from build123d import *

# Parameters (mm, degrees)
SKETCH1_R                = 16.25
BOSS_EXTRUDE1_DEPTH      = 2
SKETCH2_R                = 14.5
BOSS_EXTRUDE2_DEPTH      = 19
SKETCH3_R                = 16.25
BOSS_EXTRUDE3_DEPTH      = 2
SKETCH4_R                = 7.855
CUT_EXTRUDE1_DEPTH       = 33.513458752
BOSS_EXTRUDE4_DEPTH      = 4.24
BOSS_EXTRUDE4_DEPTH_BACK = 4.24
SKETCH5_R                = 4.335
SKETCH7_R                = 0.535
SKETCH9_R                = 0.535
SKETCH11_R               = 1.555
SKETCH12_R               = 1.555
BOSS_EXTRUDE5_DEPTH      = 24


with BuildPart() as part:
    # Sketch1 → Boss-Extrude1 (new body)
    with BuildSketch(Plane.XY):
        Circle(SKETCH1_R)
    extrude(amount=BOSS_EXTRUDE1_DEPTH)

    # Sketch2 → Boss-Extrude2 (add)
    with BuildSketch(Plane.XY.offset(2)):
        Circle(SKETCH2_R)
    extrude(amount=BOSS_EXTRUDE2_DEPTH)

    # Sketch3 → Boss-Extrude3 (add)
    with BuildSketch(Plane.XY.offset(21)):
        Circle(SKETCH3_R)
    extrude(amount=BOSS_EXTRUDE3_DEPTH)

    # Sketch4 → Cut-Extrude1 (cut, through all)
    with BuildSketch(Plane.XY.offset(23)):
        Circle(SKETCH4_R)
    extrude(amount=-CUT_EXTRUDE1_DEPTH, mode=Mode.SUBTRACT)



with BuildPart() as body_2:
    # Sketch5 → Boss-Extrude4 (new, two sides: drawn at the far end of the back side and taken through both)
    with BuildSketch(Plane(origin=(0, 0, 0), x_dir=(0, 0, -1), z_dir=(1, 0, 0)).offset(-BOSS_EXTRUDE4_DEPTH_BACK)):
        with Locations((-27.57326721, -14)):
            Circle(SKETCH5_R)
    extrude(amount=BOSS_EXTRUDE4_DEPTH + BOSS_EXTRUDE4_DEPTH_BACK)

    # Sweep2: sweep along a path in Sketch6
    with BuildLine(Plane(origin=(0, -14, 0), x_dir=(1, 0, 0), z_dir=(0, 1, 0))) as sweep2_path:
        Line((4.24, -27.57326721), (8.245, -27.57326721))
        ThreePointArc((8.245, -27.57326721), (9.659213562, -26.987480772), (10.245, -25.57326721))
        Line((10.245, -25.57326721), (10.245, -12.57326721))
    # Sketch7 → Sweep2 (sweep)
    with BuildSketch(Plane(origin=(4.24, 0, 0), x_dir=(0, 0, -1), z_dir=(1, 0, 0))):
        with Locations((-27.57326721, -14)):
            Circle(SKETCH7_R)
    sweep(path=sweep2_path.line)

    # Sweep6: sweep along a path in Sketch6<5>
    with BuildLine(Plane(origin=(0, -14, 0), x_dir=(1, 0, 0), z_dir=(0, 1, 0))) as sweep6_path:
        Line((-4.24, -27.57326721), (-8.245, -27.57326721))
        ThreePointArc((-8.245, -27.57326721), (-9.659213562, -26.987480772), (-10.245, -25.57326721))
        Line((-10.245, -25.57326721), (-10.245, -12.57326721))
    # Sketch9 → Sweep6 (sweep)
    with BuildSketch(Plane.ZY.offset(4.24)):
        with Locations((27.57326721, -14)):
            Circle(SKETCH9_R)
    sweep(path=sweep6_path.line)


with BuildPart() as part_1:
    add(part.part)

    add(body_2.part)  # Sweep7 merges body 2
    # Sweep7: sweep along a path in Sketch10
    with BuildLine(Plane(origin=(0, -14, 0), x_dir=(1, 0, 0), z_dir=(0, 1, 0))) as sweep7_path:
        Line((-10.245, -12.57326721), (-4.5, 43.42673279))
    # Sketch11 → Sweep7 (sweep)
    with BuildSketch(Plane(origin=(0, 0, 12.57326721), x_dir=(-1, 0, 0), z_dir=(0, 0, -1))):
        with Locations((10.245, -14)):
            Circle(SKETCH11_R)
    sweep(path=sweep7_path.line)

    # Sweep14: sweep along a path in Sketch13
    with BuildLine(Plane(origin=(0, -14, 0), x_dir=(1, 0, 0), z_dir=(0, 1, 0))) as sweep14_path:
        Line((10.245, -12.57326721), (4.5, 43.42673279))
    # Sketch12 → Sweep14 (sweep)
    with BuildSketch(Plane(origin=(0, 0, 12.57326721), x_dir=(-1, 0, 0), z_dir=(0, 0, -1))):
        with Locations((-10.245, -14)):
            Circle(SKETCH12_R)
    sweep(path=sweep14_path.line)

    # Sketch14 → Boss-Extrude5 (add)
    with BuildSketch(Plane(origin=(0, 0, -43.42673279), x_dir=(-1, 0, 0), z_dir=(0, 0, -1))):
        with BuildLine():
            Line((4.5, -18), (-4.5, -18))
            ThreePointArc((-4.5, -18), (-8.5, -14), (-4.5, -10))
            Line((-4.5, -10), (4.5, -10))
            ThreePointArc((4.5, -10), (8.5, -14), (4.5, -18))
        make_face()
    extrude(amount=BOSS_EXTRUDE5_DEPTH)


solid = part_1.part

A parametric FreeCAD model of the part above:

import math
import FreeCAD as App
import Part
import Sketcher
from FreeCAD import Vector
Q = App.Units.Quantity

doc = App.newDocument("Part")
body = doc.addObject("PartDesign::Body", "Body")

# Sketch on XY plane
sketch1 = body.newObject("Sketcher::SketchObject", "Sketch")
sketch1.AttachmentSupport = (doc.getObject("XY_Plane"), [""])
sketch1.MapMode = "FlatFace"
sketch1.addGeometry(Part.Circle(Vector(0, 0, 0), Vector(0, 0, 1), 16.25), False)
sketch1.addConstraint([
    Sketcher.Constraint("Coincident", 0, 3, -1, 1),
    Sketcher.Constraint("Diameter", 0, Q("32.5 mm")),
])
pad1 = body.newObject("PartDesign::Pad", "Pad")
pad1.Profile = sketch1
pad1.Length = 2

# Sketch on XY plane
sketch2 = body.newObject("Sketcher::SketchObject", "Sketch001")
sketch2.AttachmentSupport = (doc.getObject("XY_Plane"), [""])
sketch2.MapMode = "FlatFace"
sketch2.AttachmentOffset = App.Placement(Vector(0, 0, 2), App.Rotation())
sketch2.addGeometry(Part.Circle(Vector(0, 0, 0), Vector(0, 0, 1), 14.5), False)
sketch2.addConstraint([
    Sketcher.Constraint("Coincident", 0, 3, -1, 1),
    Sketcher.Constraint("Diameter", 0, Q("29 mm")),
])
pad2 = body.newObject("PartDesign::Pad", "Pad001")
pad2.Profile = sketch2
pad2.Length = 19

# Sketch on XY plane
sketch3 = body.newObject("Sketcher::SketchObject", "Sketch002")
sketch3.AttachmentSupport = (doc.getObject("XY_Plane"), [""])
sketch3.MapMode = "FlatFace"
sketch3.AttachmentOffset = App.Placement(Vector(0, 0, 21), App.Rotation())
sketch3.addGeometry(Part.Circle(Vector(0, 0, 0), Vector(0, 0, 1), 16.25), False)
sketch3.addConstraint([
    Sketcher.Constraint("Coincident", 0, 3, -1, 1),
    Sketcher.Constraint("Diameter", 0, Q("32.5 mm")),
])
pad3 = body.newObject("PartDesign::Pad", "Pad002")
pad3.Profile = sketch3
pad3.Length = 2

# Sketch on XY plane
sketch4 = body.newObject("Sketcher::SketchObject", "Sketch003")
sketch4.AttachmentSupport = (doc.getObject("XY_Plane"), [""])
sketch4.MapMode = "FlatFace"
sketch4.AttachmentOffset = App.Placement(Vector(0, 0, 23), App.Rotation())
sketch4.addGeometry(Part.Circle(Vector(0, 0, 0), Vector(0, 0, 1), 7.855), False)
sketch4.addConstraint([
    Sketcher.Constraint("Coincident", 0, 3, -1, 1),
    Sketcher.Constraint("Diameter", 0, Q("15.71 mm")),
])
pocket1 = body.newObject("PartDesign::Pocket", "Pocket")
pocket1.Profile = sketch4
pocket1.Type = "ThroughAll"
body2 = doc.addObject("PartDesign::Body", "Body001")

# Sketch on YZ plane
sketch5 = body2.newObject("Sketcher::SketchObject", "Sketch004")
sketch5.AttachmentSupport = (doc.getObject("YZ_Plane001"), [""])
sketch5.MapMode = "FlatFace"
sketch5.addGeometry(Part.Circle(Vector(-14, 27.573267, 0), Vector(0, 0, 1), 4.335), False)
sketch5.addConstraint([
    Sketcher.Constraint("Diameter", 0, Q("8.67 mm")),
    Sketcher.Constraint("DistanceX", 0, 3, -1, 1, Q("14 mm")),
    Sketcher.Constraint("DistanceY", -1, 1, 0, 3, Q("27.573267 mm")),
])
pad4 = body2.newObject("PartDesign::Pad", "Pad003")
pad4.Profile = sketch5
pad4.Type = "TwoLengths"
pad4.Length = 4.24
pad4.Length2 = 4.24

# Sketch on YZ plane
sketch6 = body2.newObject("Sketcher::SketchObject", "Sketch005")
sketch6.AttachmentSupport = (doc.getObject("YZ_Plane001"), [""])
sketch6.MapMode = "FlatFace"
sketch6.AttachmentOffset = App.Placement(Vector(0, 0, 4.24), App.Rotation())
sketch6.addGeometry(Part.Circle(Vector(-14, 27.573267, 0), Vector(0, 0, 1), 0.535), False)
sketch6.addConstraint([
    Sketcher.Constraint("Diameter", 0, Q("1.07 mm")),
    Sketcher.Constraint("DistanceX", 0, 3, -1, 1, Q("14 mm")),
    Sketcher.Constraint("DistanceY", -1, 1, 0, 3, Q("27.573267 mm")),
])

# Sketch on XZ plane
sketch7 = body2.newObject("Sketcher::SketchObject", "Sketch006")
sketch7.AttachmentSupport = (doc.getObject("XZ_Plane001"), [""])
sketch7.MapMode = "FlatFace"
sketch7.AttachmentOffset = App.Placement(Vector(0, 0, 14), App.Rotation())
sketch7.addGeometry([
    Part.LineSegment(Vector(4.24, 27.573267, 0), Vector(8.245, 27.573267, 0)),
    Part.ArcOfCircle(Part.Circle(Vector(8.245, 25.573267, 0), Vector(0, 0, 1), 2), math.radians(0), math.radians(90)),
    Part.LineSegment(Vector(10.245, 25.573267, 0), Vector(10.245, 12.573267, 0)),
], False)
sketch7.addConstraint([
    Sketcher.Constraint("Tangent", 0, 2, 1, 2),
    Sketcher.Constraint("Tangent", 1, 1, 2, 1),
    Sketcher.Constraint("Horizontal", 0),
    Sketcher.Constraint("Vertical", 2),
    Sketcher.Constraint("Radius", 1, Q("2 mm")),
    Sketcher.Constraint("DistanceY", 2, 2, 2, 1, Q("13 mm")),
    Sketcher.Constraint("DistanceX", 0, 1, 0, 2, Q("4.005 mm")),
    Sketcher.Constraint("DistanceX", -1, 1, 0, 1, Q("4.24 mm")),
    Sketcher.Constraint("DistanceY", -1, 1, 1, 3, Q("25.573267 mm")),
])
doc.recompute()

additivepipe = body2.newObject("PartDesign::AdditivePipe", "AdditivePipe")
additivepipe.Profile = sketch6
additivepipe.Spine = (sketch7, ["Edge1", "Edge2", "Edge3"])

# Sketch on YZ plane
sketch8 = body2.newObject("Sketcher::SketchObject", "Sketch007")
sketch8.AttachmentSupport = (doc.getObject("YZ_Plane001"), [""])
sketch8.MapMode = "FlatFace"
sketch8.AttachmentOffset = App.Placement(Vector(0, 0, -4.24), App.Rotation())
sketch8.addGeometry(Part.Circle(Vector(-14, 27.573267, 0), Vector(0, 0, 1), 0.535), False)
sketch8.addConstraint([
    Sketcher.Constraint("Diameter", 0, Q("1.07 mm")),
    Sketcher.Constraint("DistanceX", 0, 3, -1, 1, Q("14 mm")),
    Sketcher.Constraint("DistanceY", -1, 1, 0, 3, Q("27.573267 mm")),
])

# Sketch on XZ plane
sketch9 = body2.newObject("Sketcher::SketchObject", "Sketch008")
sketch9.AttachmentSupport = (doc.getObject("XZ_Plane001"), [""])
sketch9.MapMode = "FlatFace"
sketch9.AttachmentOffset = App.Placement(Vector(0, 0, 14), App.Rotation())
sketch9.addGeometry([
    Part.LineSegment(Vector(-4.24, 27.573267, 0), Vector(-8.245, 27.573267, 0)),
    Part.ArcOfCircle(Part.Circle(Vector(-8.245, 25.573267, 0), Vector(0, 0, 1), 2), math.radians(90), math.radians(180)),
    Part.LineSegment(Vector(-10.245, 25.573267, 0), Vector(-10.245, 12.573267, 0)),
], False)
sketch9.addConstraint([
    Sketcher.Constraint("Tangent", 0, 2, 1, 1),
    Sketcher.Constraint("Tangent", 1, 2, 2, 1),
    Sketcher.Constraint("Horizontal", 0),
    Sketcher.Constraint("Vertical", 2),
    Sketcher.Constraint("Radius", 1, Q("2 mm")),
    Sketcher.Constraint("DistanceY", 2, 2, 2, 1, Q("13 mm")),
    Sketcher.Constraint("DistanceX", 0, 2, 0, 1, Q("4.005 mm")),
    Sketcher.Constraint("DistanceX", 0, 1, -1, 1, Q("4.24 mm")),
    Sketcher.Constraint("DistanceY", -1, 1, 1, 3, Q("25.573267 mm")),
])
doc.recompute()

additivepipe2 = body2.newObject("PartDesign::AdditivePipe", "AdditivePipe001")
additivepipe2.Profile = sketch8
additivepipe2.Spine = (sketch9, ["Edge1", "Edge2", "Edge3"])
body.AllowCompound = True
doc.recompute()

boolean = body.newObject("PartDesign::Boolean", "Boolean")
boolean.Type = "Fuse"
boolean.addObjects([body2])

# Sketch on XY plane
sketch10 = body.newObject("Sketcher::SketchObject", "Sketch009")
sketch10.AttachmentSupport = (doc.getObject("XY_Plane"), [""])
sketch10.MapMode = "FlatFace"
sketch10.AttachmentOffset = App.Placement(Vector(0, 0, 12.573267), App.Rotation())
sketch10.addGeometry(Part.Circle(Vector(-10.245, -14, 0), Vector(0, 0, 1), 1.555), False)
sketch10.addConstraint([
    Sketcher.Constraint("Diameter", 0, Q("3.11 mm")),
    Sketcher.Constraint("DistanceY", 0, 3, -1, 1, Q("14 mm")),
    Sketcher.Constraint("DistanceX", 0, 3, -1, 1, Q("10.245 mm")),
])

# Sketch on an angled plane
sketch11 = body.newObject("Sketcher::SketchObject", "Sketch010")
sketch11.Placement = App.Placement(Vector(-8.86185, 0, -0.909131), App.Rotation(Vector(0.102053656, 0, -0.994778896), Vector(0, 1.000000001, 0), Vector(0.994778896, 0, 0.102053656), "ZXY"))
sketch11.addGeometry(Part.LineSegment(Vector(-13.553161, -14, 0), Vector(42.740756, -14, 0)), False)
sketch11.addConstraint([
    Sketcher.Constraint("Horizontal", 0),
    Sketcher.Constraint("DistanceY", 0, 1, -1, 1, Q("14 mm")),
    Sketcher.Constraint("DistanceX", 0, 1, 0, 2, Q("56.293916 mm")),
    Sketcher.Constraint("DistanceX", 0, 1, -1, 1, Q("13.553161 mm")),
])
doc.recompute()

additivepipe3 = body.newObject("PartDesign::AdditivePipe", "AdditivePipe002")
additivepipe3.Profile = sketch10
additivepipe3.Spine = (sketch11, ["Edge1"])

# Sketch on XY plane
sketch12 = body.newObject("Sketcher::SketchObject", "Sketch011")
sketch12.AttachmentSupport = (doc.getObject("XY_Plane"), [""])
sketch12.MapMode = "FlatFace"
sketch12.AttachmentOffset = App.Placement(Vector(0, 0, 12.573267), App.Rotation())
sketch12.addGeometry(Part.Circle(Vector(10.245, -14, 0), Vector(0, 0, 1), 1.555), False)
sketch12.addConstraint([
    Sketcher.Constraint("Diameter", 0, Q("3.11 mm")),
    Sketcher.Constraint("DistanceY", 0, 3, -1, 1, Q("14 mm")),
    Sketcher.Constraint("DistanceX", -1, 1, 0, 3, Q("10.245 mm")),
])

# Sketch on an angled plane
sketch13 = body.newObject("Sketcher::SketchObject", "Sketch012")
sketch13.Placement = App.Placement(Vector(8.86185, 0, -0.909131), App.Rotation(Vector(-0.102053656, 0, -0.994778896), Vector(0, 1.000000001, 0), Vector(0.994778896, 0, -0.102053656), "ZXY"))
sketch13.addGeometry(Part.LineSegment(Vector(-13.553161, -14, 0), Vector(42.740756, -14, 0)), False)
sketch13.addConstraint([
    Sketcher.Constraint("Horizontal", 0),
    Sketcher.Constraint("DistanceY", 0, 1, -1, 1, Q("14 mm")),
    Sketcher.Constraint("DistanceX", 0, 1, 0, 2, Q("56.293916 mm")),
    Sketcher.Constraint("DistanceX", 0, 1, -1, 1, Q("13.553161 mm")),
])
doc.recompute()

additivepipe4 = body.newObject("PartDesign::AdditivePipe", "AdditivePipe003")
additivepipe4.Profile = sketch12
additivepipe4.Spine = (sketch13, ["Edge1"])

# Sketch on XY plane
sketch14 = body.newObject("Sketcher::SketchObject", "Sketch013")
sketch14.AttachmentSupport = (doc.getObject("XY_Plane"), [""])
sketch14.MapMode = "FlatFace"
sketch14.AttachmentOffset = App.Placement(Vector(0, 0, -43.426733), App.Rotation())
sketch14.addGeometry([
    Part.LineSegment(Vector(4.5, -18, 0), Vector(-4.5, -18, 0)),
    Part.ArcOfCircle(Part.Circle(Vector(-4.5, -14, 0), Vector(0, 0, 1), 4), math.radians(90), math.radians(270)),
    Part.LineSegment(Vector(-4.5, -10, 0), Vector(4.5, -10, 0)),
    Part.ArcOfCircle(Part.Circle(Vector(4.5, -14, 0), Vector(0, 0, 1), 4), math.radians(-90), math.radians(90)),
], False)
sketch14.addConstraint([
    Sketcher.Constraint("Tangent", 0, 2, 1, 2),
    Sketcher.Constraint("Tangent", 1, 1, 2, 1),
    Sketcher.Constraint("Tangent", 2, 2, 3, 2),
    Sketcher.Constraint("Tangent", 3, 1, 0, 1),
    Sketcher.Constraint("Horizontal", 0),
    Sketcher.Constraint("Horizontal", 2),
    Sketcher.Constraint("Radius", 1, Q("4 mm")),
    Sketcher.Constraint("DistanceX", 0, 2, 0, 1, Q("9 mm")),
    Sketcher.Constraint("DistanceY", 1, 3, -1, 1, Q("14 mm")),
    Sketcher.Constraint("DistanceX", 1, 3, -1, 1, Q("4.5 mm")),
])
pad5 = body.newObject("PartDesign::Pad", "Pad004")
pad5.Profile = sketch14
pad5.Length = 24
pad5.Reversed = True

doc.recompute()
